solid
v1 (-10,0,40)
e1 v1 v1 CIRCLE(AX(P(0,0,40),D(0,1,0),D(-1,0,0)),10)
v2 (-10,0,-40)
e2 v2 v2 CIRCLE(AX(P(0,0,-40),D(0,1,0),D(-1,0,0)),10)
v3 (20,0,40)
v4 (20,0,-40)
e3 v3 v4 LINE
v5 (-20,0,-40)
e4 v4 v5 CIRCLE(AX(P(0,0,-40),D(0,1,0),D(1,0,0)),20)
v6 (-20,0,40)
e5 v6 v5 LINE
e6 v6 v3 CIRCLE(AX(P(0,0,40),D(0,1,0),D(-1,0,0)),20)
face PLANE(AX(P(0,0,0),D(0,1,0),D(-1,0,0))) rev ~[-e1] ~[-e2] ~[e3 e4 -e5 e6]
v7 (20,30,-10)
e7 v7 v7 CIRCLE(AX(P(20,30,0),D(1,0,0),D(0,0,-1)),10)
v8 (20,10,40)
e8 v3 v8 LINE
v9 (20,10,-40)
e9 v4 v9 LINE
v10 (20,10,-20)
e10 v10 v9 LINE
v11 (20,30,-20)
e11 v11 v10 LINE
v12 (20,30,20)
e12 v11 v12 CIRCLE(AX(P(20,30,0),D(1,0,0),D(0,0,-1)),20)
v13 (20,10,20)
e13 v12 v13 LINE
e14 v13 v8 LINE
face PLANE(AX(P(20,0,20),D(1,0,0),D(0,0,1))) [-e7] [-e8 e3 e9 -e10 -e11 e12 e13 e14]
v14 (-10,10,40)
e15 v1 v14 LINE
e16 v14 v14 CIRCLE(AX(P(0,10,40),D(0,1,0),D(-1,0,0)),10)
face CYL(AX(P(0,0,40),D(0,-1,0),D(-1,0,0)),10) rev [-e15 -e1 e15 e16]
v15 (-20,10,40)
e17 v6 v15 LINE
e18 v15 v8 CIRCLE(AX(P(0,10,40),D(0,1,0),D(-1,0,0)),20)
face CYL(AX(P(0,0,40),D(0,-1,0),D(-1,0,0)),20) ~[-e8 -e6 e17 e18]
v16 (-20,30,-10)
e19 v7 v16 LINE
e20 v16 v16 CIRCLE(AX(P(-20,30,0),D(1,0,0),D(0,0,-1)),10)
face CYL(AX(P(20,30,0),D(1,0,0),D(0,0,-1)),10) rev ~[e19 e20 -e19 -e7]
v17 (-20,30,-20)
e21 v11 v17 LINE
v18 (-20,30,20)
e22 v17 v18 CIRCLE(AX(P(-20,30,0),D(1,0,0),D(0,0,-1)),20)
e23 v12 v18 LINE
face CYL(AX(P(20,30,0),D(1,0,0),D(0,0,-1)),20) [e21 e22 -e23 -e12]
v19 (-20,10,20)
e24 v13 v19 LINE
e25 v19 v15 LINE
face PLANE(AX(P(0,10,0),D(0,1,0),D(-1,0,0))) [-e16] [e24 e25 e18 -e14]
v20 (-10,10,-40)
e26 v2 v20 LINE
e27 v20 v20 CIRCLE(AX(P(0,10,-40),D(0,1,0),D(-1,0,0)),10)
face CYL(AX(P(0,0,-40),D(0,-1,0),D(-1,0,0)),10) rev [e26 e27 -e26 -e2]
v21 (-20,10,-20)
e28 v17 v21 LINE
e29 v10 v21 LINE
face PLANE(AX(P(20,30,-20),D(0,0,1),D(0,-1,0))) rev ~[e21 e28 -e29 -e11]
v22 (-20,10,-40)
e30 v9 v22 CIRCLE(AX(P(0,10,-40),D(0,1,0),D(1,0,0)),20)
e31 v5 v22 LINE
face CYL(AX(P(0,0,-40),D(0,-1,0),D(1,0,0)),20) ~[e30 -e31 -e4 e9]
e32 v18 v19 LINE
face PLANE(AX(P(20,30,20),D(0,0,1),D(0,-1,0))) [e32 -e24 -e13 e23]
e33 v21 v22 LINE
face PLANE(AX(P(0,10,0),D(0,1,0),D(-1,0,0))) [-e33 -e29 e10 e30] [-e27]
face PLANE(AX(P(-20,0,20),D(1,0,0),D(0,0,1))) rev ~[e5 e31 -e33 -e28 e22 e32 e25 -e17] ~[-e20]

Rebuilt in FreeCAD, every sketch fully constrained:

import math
import FreeCAD as App
import Part
import Sketcher

V = App.Vector

doc = App.newDocument("Part")
params = doc.addObject("Spreadsheet::Sheet", "Params")
for row, (alias, value) in enumerate([
    ("sketch1_diameter", "20 mm"),
    ("sketch1_radius", "20 mm"),
    ("sketch1_height", "80 mm"),
    ("pad1_length", "10 mm"),
    ("sketch2_diameter", "20 mm"),
    ("sketch2_radius", "20 mm"),
    ("sketch2_width", "20 mm"),
    ("pad2_length", "40 mm"),
], start=1):
    params.set(f"A{row}", alias)
    params.set(f"B{row}", "=" + value)
    params.setAlias(f"B{row}", alias)

body = doc.addObject("PartDesign::Body", "Body")

sketch1 = doc.addObject("Sketcher::SketchObject", "Sketch")
body.addObject(sketch1)
sketch1.AttachmentSupport = (doc.XZ_Plane, [""])
sketch1.MapMode = "FlatFace"
sketch1.addGeometry(Part.LineSegment(V(20, 40, 0), V(20, -40, 0)), False)
sketch1.addGeometry(Part.ArcOfCircle(Part.Circle(V(0, -40, 0), V(0, 0, 1), 20), math.radians(180), math.radians(360)), False)
sketch1.addGeometry(Part.LineSegment(V(-20, -40, 0), V(-20, 40, 0)), False)
sketch1.addGeometry(Part.ArcOfCircle(Part.Circle(V(0, 40, 0), V(0, 0, 1), 20), math.radians(0), math.radians(180)), False)
sketch1.addGeometry(Part.Circle(V(0, -40, 0), V(0, 0, 1), 10), False)
sketch1.addGeometry(Part.Circle(V(0, 40, 0), V(0, 0, 1), 10), False)
sketch1.addConstraint(Sketcher.Constraint("Tangent", 0, 2, 1, 2))
sketch1.addConstraint(Sketcher.Constraint("Tangent", 1, 1, 2, 1))
sketch1.addConstraint(Sketcher.Constraint("Tangent", 2, 2, 3, 2))
sketch1.addConstraint(Sketcher.Constraint("Tangent", 3, 1, 0, 1))
sketch1.addConstraint(Sketcher.Constraint("Vertical", 0))
sketch1.addConstraint(Sketcher.Constraint("Vertical", 2))
sketch1.addConstraint(Sketcher.Constraint("Coincident", 4, 3, 1, 3))
sketch1.addConstraint(Sketcher.Constraint("Coincident", 5, 3, 3, 3))
sketch1.addConstraint(Sketcher.Constraint("Equal", 4, 5))
sketch1.addConstraint(Sketcher.Constraint("Symmetric", 1, 3, 3, 3, -1, 1))
sketch1.addConstraint(Sketcher.Constraint("Diameter", 4, 20.0))
sketch1.addConstraint(Sketcher.Constraint("Radius", 1, 20.0))
sketch1.addConstraint(Sketcher.Constraint("DistanceY", 0, 2, 0, 1, 80.0))
sketch1.setExpression("Constraints[10]", "Params.sketch1_diameter")
sketch1.setExpression("Constraints[11]", "Params.sketch1_radius")
sketch1.setExpression("Constraints[12]", "Params.sketch1_height")
pad1 = doc.addObject("PartDesign::Pad", "Pad")
body.addObject(pad1)
pad1.Profile = sketch1
pad1.setExpression("Length", "Params.pad1_length")
pad1.Reversed = True

sketch2 = doc.addObject("Sketcher::SketchObject", "Sketch001")
body.addObject(sketch2)
sketch2.AttachmentSupport = (doc.YZ_Plane, [""])
sketch2.MapMode = "FlatFace"
sketch2.AttachmentOffset = App.Placement(V(0, 0, 20), App.Rotation())
sketch2.addGeometry(Part.LineSegment(V(10, -20, 0), V(30, -20, 0)), False)
sketch2.addGeometry(Part.ArcOfCircle(Part.Circle(V(30, 0, 0), V(0, 0, 1), 20), math.radians(-90), math.radians(90)), False)
sketch2.addGeometry(Part.LineSegment(V(30, 20, 0), V(10, 20, 0)), False)
sketch2.addGeometry(Part.LineSegment(V(10, 20, 0), V(10, -20, 0)), False)
sketch2.addGeometry(Part.Circle(V(30, 0, 0), V(0, 0, 1), 10), False)
sketch2.addConstraint(Sketcher.Constraint("Tangent", 0, 2, 1, 1))
sketch2.addConstraint(Sketcher.Constraint("Tangent", 1, 2, 2, 1))
sketch2.addConstraint(Sketcher.Constraint("Coincident", 2, 2, 3, 1))
sketch2.addConstraint(Sketcher.Constraint("Coincident", 3, 2, 0, 1))
sketch2.addConstraint(Sketcher.Constraint("Horizontal", 0))
sketch2.addConstraint(Sketcher.Constraint("Horizontal", 2))
sketch2.addConstraint(Sketcher.Constraint("Vertical", 3))
sketch2.addConstraint(Sketcher.Constraint("Coincident", 4, 3, 1, 3))
sketch2.addConstraint(Sketcher.Constraint("PointOnObject", 1, 3, -1))
sketch2.addConstraint(Sketcher.Constraint("Diameter", 4, 20.0))
sketch2.addConstraint(Sketcher.Constraint("Radius", 1, 20.0))
sketch2.addConstraint(Sketcher.Constraint("DistanceX", 0, 1, 0, 2, 20.0))
sketch2.addConstraint(Sketcher.Constraint("DistanceX", -1, 1, 1, 3, 30.0))
sketch2.setExpression("Constraints[9]", "Params.sketch2_diameter")
sketch2.setExpression("Constraints[10]", "Params.sketch2_radius")
sketch2.setExpression("Constraints[11]", "Params.sketch2_width")
pad2 = doc.addObject("PartDesign::Pad", "Pad001")
body.addObject(pad2)
pad2.Profile = sketch2
pad2.setExpression("Length", "Params.pad2_length")
pad2.Reversed = True

doc.recompute()
